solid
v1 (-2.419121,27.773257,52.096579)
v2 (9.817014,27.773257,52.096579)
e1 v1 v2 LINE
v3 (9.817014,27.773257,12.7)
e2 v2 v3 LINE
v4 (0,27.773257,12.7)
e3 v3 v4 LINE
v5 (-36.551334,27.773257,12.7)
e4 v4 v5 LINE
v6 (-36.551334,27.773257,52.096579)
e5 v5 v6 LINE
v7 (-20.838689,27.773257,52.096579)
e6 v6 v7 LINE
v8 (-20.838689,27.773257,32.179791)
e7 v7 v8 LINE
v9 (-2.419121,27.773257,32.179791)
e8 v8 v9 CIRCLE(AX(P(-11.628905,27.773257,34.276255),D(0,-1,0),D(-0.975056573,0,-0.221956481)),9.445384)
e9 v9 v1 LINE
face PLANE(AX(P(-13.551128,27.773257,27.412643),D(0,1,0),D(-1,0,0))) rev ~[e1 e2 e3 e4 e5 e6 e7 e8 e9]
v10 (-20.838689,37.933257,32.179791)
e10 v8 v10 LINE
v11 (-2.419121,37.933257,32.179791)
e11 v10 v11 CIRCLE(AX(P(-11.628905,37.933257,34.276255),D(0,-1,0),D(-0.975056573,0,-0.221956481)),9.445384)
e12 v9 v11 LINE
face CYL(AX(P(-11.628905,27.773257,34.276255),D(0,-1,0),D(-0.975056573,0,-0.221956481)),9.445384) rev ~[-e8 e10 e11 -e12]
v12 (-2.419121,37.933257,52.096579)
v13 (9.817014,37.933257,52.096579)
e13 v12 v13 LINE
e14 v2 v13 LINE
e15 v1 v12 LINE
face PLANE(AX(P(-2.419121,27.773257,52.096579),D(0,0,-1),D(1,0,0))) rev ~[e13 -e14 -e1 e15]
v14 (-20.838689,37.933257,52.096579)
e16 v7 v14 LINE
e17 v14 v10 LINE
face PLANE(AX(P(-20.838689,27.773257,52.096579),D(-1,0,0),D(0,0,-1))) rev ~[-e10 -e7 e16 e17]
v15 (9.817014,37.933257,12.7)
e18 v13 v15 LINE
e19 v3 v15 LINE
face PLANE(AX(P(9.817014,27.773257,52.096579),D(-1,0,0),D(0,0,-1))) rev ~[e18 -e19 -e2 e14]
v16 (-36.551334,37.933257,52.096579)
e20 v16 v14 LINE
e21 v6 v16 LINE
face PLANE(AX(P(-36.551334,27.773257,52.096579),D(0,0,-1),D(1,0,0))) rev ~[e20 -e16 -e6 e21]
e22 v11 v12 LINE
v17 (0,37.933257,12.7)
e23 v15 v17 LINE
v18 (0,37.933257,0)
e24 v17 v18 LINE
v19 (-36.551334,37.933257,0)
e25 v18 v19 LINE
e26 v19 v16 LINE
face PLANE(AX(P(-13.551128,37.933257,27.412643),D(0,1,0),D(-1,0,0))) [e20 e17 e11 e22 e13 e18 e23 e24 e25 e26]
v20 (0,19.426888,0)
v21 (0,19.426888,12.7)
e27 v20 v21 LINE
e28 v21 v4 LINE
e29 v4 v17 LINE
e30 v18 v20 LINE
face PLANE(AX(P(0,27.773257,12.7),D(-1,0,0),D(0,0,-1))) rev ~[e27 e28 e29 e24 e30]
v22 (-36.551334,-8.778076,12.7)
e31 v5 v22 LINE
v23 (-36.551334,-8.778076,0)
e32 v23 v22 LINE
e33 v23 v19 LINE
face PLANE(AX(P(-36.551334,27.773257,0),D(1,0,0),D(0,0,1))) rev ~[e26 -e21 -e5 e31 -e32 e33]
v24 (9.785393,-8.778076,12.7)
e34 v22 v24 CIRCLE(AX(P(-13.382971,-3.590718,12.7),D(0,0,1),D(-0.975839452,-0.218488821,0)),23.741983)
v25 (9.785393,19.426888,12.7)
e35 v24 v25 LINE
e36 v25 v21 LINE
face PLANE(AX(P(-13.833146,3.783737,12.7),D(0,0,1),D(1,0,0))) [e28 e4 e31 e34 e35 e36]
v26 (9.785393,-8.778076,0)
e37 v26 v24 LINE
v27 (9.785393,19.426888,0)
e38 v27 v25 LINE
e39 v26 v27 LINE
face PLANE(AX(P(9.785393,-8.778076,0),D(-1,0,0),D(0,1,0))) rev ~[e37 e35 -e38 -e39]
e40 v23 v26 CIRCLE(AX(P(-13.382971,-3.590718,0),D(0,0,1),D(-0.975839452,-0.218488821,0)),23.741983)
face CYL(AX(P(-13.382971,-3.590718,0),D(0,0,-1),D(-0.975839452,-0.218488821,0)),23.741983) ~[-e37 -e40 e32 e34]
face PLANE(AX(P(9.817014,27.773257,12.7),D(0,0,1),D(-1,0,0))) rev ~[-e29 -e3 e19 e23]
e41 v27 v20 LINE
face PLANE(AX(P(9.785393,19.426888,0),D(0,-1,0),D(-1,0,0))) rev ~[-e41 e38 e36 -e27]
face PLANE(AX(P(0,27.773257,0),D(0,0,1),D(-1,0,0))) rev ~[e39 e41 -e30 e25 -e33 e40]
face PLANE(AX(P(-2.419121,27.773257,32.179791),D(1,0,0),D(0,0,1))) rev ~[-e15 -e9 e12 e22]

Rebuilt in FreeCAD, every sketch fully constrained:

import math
import FreeCAD as App
import Part
import Sketcher
from FreeCAD import Vector
Q = App.Units.Quantity

doc = App.newDocument("Part")
params = doc.addObject("Spreadsheet::Sheet", "Params")
for row, (alias, value) in enumerate([
    ("pad1_length", "0.5 in"),
    ("sketch2_height", "0.5 in"),
    ("pad2_length", "0.4 in"),
], start=1):
    params.set(f"A{row}", alias)
    params.set(f"B{row}", "=" + value)
    params.setAlias(f"B{row}", alias)

body = doc.addObject("PartDesign::Body", "Body")

sketch1 = doc.addObject("Sketcher::SketchObject", "Sketch")
body.addObject(sketch1)
sketch1.AttachmentSupport = (doc.XY_Plane, [""])
sketch1.MapMode = "FlatFace"
sketch1.addGeometry(Part.LineSegment(Vector(0, 28, 0), Vector(-37, 28, 0)), False)
sketch1.addGeometry(Part.LineSegment(Vector(-37, 28, 0), Vector(-37, -9, 0)), False)
sketch1.addGeometry(Part.ArcOfCircle(Part.Circle(Vector(-13, -4, 0), Vector(0, 0, 1), 24), math.radians(-167), math.radians(-13)), False)
sketch1.addGeometry(Part.LineSegment(Vector(10, -9, 0), Vector(10, 19, 0)), False)
sketch1.addGeometry(Part.LineSegment(Vector(10, 19, 0), Vector(0, 19, 0)), False)
sketch1.addGeometry(Part.LineSegment(Vector(0, 19, 0), Vector(0, 28, 0)), False)
sketch1.addConstraint(Sketcher.Constraint("Coincident", 0, 2, 1, 1))
sketch1.addConstraint(Sketcher.Constraint("Coincident", 1, 2, 2, 1))
sketch1.addConstraint(Sketcher.Constraint("Coincident", 2, 2, 3, 1))
sketch1.addConstraint(Sketcher.Constraint("Coincident", 3, 2, 4, 1))
sketch1.addConstraint(Sketcher.Constraint("Coincident", 4, 2, 5, 1))
sketch1.addConstraint(Sketcher.Constraint("Coincident", 5, 2, 0, 1))
sketch1.addConstraint(Sketcher.Constraint("Horizontal", 0))
sketch1.addConstraint(Sketcher.Constraint("Vertical", 1))
sketch1.addConstraint(Sketcher.Constraint("Vertical", 3))
sketch1.addConstraint(Sketcher.Constraint("Horizontal", 4))
sketch1.addConstraint(Sketcher.Constraint("Vertical", 5))
sketch1.addConstraint(Sketcher.Constraint("PointOnObject", 4, 2, -2))
sketch1.addConstraint(Sketcher.Constraint("Horizontal", 1, 2, 2, 2))
sketch1.addConstraint(Sketcher.Constraint("Equal", 0, 1))
sketch1.addConstraint(Sketcher.Constraint("Radius", 2, Q("23.741983 mm")))
sketch1.addConstraint(Sketcher.Constraint("DistanceY", 5, 1, 5, 2, Q("8.346369 mm")))
sketch1.addConstraint(Sketcher.Constraint("DistanceX", 0, 2, 0, 1, Q("36.551334 mm")))
sketch1.addConstraint(Sketcher.Constraint("DistanceX", 4, 2, 4, 1, Q("9.785393 mm")))
sketch1.addConstraint(Sketcher.Constraint("DistanceY", 2, 3, -1, 1, Q("3.590718 mm")))
pad1 = doc.addObject("PartDesign::Pad", "Pad")
body.addObject(pad1)
pad1.Profile = sketch1
pad1.setExpression("Length", "Params.pad1_length")

sketch2 = doc.addObject("Sketcher::SketchObject", "Sketch001")
body.addObject(sketch2)
sketch2.AttachmentSupport = (doc.XZ_Plane, [""])
sketch2.MapMode = "FlatFace"
sketch2.AttachmentOffset = App.Placement(Vector(0, 0, -27.773257), App.Rotation())
sketch2.addGeometry(Part.LineSegment(Vector(0, 0, 0), Vector(-37, 0, 0)), False)
sketch2.addGeometry(Part.LineSegment(Vector(-37, 0, 0), Vector(-37, 52, 0)), False)
sketch2.addGeometry(Part.LineSegment(Vector(-37, 52, 0), Vector(-21, 52, 0)), False)
sketch2.addGeometry(Part.LineSegment(Vector(-21, 52, 0), Vector(-21, 32, 0)), False)
sketch2.addGeometry(Part.ArcOfCircle(Part.Circle(Vector(-12, 34, 0), Vector(0, 0, 1), 9), math.radians(-167), math.radians(-13)), False)
sketch2.addGeometry(Part.LineSegment(Vector(-2, 32, 0), Vector(-2, 52, 0)), False)
sketch2.addGeometry(Part.LineSegment(Vector(-2, 52, 0), Vector(10, 52, 0)), False)
sketch2.addGeometry(Part.LineSegment(Vector(10, 52, 0), Vector(10, 13, 0)), False)
sketch2.addGeometry(Part.LineSegment(Vector(10, 13, 0), Vector(0, 13, 0)), False)
sketch2.addGeometry(Part.LineSegment(Vector(0, 13, 0), Vector(0, 0, 0)), False)
sketch2.addConstraint(Sketcher.Constraint("Coincident", 0, 2, 1, 1))
sketch2.addConstraint(Sketcher.Constraint("Coincident", 1, 2, 2, 1))
sketch2.addConstraint(Sketcher.Constraint("Coincident", 2, 2, 3, 1))
sketch2.addConstraint(Sketcher.Constraint("Coincident", 3, 2, 4, 1))
sketch2.addConstraint(Sketcher.Constraint("Coincident", 4, 2, 5, 1))
sketch2.addConstraint(Sketcher.Constraint("Coincident", 5, 2, 6, 1))
sketch2.addConstraint(Sketcher.Constraint("Coincident", 6, 2, 7, 1))
sketch2.addConstraint(Sketcher.Constraint("Coincident", 7, 2, 8, 1))
sketch2.addConstraint(Sketcher.Constraint("Coincident", 8, 2, 9, 1))
sketch2.addConstraint(Sketcher.Constraint("Coincident", 9, 2, 0, 1))
sketch2.addConstraint(Sketcher.Constraint("Horizontal", 0))
sketch2.addConstraint(Sketcher.Constraint("Vertical", 1))
sketch2.addConstraint(Sketcher.Constraint("Horizontal", 2))
sketch2.addConstraint(Sketcher.Constraint("Vertical", 3))
sketch2.addConstraint(Sketcher.Constraint("Vertical", 5))
sketch2.addConstraint(Sketcher.Constraint("Horizontal", 6))
sketch2.addConstraint(Sketcher.Constraint("Vertical", 7))
sketch2.addConstraint(Sketcher.Constraint("Horizontal", 8))
sketch2.addConstraint(Sketcher.Constraint("Vertical", 9))
sketch2.addConstraint(Sketcher.Constraint("Coincident", 9, 2, -1, 1))
sketch2.addConstraint(Sketcher.Constraint("Horizontal", 3, 2, 4, 2))
sketch2.addConstraint(Sketcher.Constraint("Horizontal", 2, 2, 5, 2))
sketch2.addConstraint(Sketcher.Constraint("DistanceY", 9, 2, 9, 1, Q("0.5 in")))
sketch2.addConstraint(Sketcher.Constraint("Radius", 4, Q("9.445384 mm")))
sketch2.addConstraint(Sketcher.Constraint("DistanceY", 1, 1, 1, 2, Q("52.096579 mm")))
sketch2.addConstraint(Sketcher.Constraint("DistanceX", 0, 2, 0, 1, Q("36.551334 mm")))
sketch2.addConstraint(Sketcher.Constraint("DistanceX", 2, 1, 2, 2, Q("15.712645 mm")))
sketch2.addConstraint(Sketcher.Constraint("DistanceX", 6, 1, 6, 2, Q("12.236135 mm")))
sketch2.addConstraint(Sketcher.Constraint("DistanceX", 8, 2, 8, 1, Q("9.817014 mm")))
sketch2.addConstraint(Sketcher.Constraint("DistanceY", 3, 2, 3, 1, Q("19.916788 mm")))
sketch2.setExpression("Constraints[22]", "Params.sketch2_height")
pad2 = doc.addObject("PartDesign::Pad", "Pad001")
body.addObject(pad2)
pad2.Profile = sketch2
pad2.setExpression("Length", "Params.pad2_length")
pad2.Reversed = True

doc.recompute()
